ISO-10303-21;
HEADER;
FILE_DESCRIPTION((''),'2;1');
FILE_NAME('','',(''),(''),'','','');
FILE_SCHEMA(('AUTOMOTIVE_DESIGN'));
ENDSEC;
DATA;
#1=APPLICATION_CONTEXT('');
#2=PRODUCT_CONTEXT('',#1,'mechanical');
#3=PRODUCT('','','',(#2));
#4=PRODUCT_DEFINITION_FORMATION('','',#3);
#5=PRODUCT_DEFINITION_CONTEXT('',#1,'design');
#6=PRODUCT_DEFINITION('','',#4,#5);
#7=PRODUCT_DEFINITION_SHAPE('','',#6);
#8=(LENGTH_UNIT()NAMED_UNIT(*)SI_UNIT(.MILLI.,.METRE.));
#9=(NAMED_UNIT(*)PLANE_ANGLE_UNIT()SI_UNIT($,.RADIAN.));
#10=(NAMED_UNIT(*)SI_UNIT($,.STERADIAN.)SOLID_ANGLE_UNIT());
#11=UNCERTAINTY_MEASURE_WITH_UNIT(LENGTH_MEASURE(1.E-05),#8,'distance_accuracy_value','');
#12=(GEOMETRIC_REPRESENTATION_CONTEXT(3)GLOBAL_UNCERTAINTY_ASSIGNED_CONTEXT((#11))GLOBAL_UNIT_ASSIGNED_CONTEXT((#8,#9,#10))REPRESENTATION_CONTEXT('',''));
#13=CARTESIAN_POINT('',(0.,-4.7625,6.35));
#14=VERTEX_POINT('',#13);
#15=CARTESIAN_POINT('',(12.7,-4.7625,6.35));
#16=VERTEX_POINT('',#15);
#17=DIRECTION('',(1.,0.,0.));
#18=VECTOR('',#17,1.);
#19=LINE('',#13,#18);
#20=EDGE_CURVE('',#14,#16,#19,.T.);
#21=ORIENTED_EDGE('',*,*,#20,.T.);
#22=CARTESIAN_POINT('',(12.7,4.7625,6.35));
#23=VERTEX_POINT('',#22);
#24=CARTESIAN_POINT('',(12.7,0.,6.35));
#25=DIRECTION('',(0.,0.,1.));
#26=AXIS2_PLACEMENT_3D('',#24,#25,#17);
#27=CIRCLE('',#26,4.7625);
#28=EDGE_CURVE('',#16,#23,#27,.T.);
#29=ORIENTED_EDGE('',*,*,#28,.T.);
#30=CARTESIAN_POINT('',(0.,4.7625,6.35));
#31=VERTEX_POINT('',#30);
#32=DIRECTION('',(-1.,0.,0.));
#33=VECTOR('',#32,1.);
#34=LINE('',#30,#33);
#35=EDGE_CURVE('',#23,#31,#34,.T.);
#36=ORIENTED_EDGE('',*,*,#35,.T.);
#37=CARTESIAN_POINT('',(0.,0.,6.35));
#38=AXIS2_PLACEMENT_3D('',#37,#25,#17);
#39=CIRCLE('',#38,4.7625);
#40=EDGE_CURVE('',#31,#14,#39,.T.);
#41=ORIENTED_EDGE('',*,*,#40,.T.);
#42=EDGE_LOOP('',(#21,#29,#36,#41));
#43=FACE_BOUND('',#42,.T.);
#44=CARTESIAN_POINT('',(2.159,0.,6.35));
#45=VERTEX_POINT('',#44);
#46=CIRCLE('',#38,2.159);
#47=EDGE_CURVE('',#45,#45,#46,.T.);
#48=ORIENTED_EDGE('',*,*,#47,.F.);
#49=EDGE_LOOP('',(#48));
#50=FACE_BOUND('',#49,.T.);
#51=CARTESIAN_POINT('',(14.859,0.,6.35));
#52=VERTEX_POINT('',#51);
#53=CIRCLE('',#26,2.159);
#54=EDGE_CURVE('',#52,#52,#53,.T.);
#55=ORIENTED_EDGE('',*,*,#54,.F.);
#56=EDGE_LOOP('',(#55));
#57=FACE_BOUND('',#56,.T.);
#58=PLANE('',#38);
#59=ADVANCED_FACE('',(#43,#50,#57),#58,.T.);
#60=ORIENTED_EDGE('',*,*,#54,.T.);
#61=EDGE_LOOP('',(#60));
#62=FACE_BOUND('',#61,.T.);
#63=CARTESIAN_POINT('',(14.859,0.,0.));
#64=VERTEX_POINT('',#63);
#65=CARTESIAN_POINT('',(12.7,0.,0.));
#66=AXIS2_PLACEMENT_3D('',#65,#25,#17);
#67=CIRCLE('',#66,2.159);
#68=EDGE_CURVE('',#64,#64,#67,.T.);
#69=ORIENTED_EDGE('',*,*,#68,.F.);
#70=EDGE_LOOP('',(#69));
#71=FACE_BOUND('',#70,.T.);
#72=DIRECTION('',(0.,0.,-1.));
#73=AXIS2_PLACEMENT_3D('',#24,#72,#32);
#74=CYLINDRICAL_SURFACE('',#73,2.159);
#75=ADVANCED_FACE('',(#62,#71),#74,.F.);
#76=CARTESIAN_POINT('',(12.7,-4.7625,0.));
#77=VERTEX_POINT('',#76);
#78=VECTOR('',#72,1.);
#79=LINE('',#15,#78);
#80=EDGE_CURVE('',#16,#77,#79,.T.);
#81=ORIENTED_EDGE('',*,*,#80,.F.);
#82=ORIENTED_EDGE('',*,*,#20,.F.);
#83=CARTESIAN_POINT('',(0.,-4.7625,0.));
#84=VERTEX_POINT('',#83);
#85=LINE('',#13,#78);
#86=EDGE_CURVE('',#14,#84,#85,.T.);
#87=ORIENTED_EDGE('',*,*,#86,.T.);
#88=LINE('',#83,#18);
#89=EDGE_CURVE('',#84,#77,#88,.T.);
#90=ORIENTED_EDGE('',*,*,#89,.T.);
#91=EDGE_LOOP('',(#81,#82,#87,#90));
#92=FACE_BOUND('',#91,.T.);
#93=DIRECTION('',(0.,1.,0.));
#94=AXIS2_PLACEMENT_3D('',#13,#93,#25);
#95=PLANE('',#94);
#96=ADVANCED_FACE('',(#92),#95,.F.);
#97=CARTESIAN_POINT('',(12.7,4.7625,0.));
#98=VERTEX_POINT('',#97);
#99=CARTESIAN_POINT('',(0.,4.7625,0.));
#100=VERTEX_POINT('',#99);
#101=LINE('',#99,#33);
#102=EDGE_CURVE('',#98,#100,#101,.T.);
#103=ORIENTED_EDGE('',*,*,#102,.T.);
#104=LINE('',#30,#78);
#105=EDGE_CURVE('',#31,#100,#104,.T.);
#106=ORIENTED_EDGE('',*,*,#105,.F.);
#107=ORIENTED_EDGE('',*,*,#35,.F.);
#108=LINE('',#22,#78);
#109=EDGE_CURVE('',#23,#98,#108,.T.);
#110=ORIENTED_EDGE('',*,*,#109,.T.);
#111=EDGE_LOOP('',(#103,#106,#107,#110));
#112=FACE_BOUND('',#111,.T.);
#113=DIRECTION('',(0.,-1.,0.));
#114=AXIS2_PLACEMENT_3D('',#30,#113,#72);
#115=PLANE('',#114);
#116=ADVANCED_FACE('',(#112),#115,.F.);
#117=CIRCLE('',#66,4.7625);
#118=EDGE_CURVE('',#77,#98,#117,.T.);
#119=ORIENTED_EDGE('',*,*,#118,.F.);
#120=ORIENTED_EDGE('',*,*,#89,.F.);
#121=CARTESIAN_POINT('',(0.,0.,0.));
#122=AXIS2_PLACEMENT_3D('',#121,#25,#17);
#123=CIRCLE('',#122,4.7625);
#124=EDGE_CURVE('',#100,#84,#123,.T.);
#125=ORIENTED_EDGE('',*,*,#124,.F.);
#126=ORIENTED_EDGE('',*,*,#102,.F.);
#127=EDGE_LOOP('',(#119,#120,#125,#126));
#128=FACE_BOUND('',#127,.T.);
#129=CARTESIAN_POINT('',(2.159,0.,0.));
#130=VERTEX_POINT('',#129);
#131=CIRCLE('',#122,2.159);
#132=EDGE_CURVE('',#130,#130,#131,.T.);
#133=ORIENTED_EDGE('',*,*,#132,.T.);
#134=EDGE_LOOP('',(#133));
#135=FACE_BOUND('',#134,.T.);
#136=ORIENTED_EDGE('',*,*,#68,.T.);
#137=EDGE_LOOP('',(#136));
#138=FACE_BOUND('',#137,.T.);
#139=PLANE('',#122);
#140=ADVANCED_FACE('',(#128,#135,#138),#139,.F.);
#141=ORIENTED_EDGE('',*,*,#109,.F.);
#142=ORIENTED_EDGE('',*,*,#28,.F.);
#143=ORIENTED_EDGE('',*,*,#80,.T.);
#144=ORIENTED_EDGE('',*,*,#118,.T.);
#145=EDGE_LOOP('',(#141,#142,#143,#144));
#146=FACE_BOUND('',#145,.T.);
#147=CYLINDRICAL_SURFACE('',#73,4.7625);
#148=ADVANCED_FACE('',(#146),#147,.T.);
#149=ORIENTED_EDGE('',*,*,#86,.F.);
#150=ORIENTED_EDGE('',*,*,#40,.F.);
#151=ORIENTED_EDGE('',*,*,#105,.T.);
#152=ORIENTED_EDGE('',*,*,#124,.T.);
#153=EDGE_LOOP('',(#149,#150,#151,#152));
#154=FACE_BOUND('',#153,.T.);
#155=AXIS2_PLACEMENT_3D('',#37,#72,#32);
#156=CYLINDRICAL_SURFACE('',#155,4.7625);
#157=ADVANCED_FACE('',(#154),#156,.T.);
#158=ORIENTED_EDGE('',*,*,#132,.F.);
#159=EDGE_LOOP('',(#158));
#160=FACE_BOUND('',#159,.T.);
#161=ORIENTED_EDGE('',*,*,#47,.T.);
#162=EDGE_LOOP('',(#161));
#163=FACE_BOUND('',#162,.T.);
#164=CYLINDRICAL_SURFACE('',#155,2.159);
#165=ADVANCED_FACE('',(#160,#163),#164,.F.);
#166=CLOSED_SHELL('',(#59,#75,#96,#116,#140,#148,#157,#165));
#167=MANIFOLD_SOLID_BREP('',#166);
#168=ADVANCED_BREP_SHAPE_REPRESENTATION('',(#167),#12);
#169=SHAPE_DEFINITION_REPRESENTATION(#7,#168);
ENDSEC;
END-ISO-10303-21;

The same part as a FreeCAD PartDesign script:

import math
import FreeCAD as App
import Part
import Sketcher

V = App.Vector
Q = App.Units.Quantity

doc = App.newDocument("Part")
body = doc.addObject("PartDesign::Body", "Body")

sketch1 = body.newObject("Sketcher::SketchObject", "Sketch")
sketch1.AttachmentSupport = (doc.getObject("XY_Plane"), [""])
sketch1.MapMode = "FlatFace"
sketch1.addGeometry([
    Part.LineSegment(V(12.7, 4.7625, 0), V(0, 4.7625, 0)),
    Part.ArcOfCircle(Part.Circle(V(0, 0, 0), V(0, 0, 1), 4.7625), math.radians(90), math.radians(270)),
    Part.LineSegment(V(0, -4.7625, 0), V(12.7, -4.7625, 0)),
    Part.ArcOfCircle(Part.Circle(V(12.7, 0, 0), V(0, 0, 1), 4.7625), math.radians(-90), math.radians(90)),
    Part.Circle(V(12.7, 0, 0), V(0, 0, 1), 2.159),
    Part.Circle(V(0, 0, 0), V(0, 0, 1), 2.159),
], False)
sketch1.addConstraint([
    Sketcher.Constraint("Tangent", 0, 2, 1, 1),
    Sketcher.Constraint("Tangent", 1, 2, 2, 1),
    Sketcher.Constraint("Tangent", 2, 2, 3, 1),
    Sketcher.Constraint("Tangent", 3, 2, 0, 1),
    Sketcher.Constraint("Horizontal", 0),
    Sketcher.Constraint("Horizontal", 2),
    Sketcher.Constraint("Coincident", 1, 3, -1, 1),
    Sketcher.Constraint("Coincident", 5, 3, -1, 1),
    Sketcher.Constraint("Coincident", 4, 3, 3, 3),
    Sketcher.Constraint("Equal", 4, 5),
    Sketcher.Constraint("Diameter", 4, Q("0.17 in")),
    Sketcher.Constraint("DistanceX", 0, 2, 0, 1, Q("0.5 in")),
    Sketcher.Constraint("Radius", 1, Q("0.1875 in")),
])
pad1 = body.newObject("PartDesign::Pad", "Pad")
pad1.Profile = sketch1
pad1.Length = Q("0.25 in")

doc.recompute()
